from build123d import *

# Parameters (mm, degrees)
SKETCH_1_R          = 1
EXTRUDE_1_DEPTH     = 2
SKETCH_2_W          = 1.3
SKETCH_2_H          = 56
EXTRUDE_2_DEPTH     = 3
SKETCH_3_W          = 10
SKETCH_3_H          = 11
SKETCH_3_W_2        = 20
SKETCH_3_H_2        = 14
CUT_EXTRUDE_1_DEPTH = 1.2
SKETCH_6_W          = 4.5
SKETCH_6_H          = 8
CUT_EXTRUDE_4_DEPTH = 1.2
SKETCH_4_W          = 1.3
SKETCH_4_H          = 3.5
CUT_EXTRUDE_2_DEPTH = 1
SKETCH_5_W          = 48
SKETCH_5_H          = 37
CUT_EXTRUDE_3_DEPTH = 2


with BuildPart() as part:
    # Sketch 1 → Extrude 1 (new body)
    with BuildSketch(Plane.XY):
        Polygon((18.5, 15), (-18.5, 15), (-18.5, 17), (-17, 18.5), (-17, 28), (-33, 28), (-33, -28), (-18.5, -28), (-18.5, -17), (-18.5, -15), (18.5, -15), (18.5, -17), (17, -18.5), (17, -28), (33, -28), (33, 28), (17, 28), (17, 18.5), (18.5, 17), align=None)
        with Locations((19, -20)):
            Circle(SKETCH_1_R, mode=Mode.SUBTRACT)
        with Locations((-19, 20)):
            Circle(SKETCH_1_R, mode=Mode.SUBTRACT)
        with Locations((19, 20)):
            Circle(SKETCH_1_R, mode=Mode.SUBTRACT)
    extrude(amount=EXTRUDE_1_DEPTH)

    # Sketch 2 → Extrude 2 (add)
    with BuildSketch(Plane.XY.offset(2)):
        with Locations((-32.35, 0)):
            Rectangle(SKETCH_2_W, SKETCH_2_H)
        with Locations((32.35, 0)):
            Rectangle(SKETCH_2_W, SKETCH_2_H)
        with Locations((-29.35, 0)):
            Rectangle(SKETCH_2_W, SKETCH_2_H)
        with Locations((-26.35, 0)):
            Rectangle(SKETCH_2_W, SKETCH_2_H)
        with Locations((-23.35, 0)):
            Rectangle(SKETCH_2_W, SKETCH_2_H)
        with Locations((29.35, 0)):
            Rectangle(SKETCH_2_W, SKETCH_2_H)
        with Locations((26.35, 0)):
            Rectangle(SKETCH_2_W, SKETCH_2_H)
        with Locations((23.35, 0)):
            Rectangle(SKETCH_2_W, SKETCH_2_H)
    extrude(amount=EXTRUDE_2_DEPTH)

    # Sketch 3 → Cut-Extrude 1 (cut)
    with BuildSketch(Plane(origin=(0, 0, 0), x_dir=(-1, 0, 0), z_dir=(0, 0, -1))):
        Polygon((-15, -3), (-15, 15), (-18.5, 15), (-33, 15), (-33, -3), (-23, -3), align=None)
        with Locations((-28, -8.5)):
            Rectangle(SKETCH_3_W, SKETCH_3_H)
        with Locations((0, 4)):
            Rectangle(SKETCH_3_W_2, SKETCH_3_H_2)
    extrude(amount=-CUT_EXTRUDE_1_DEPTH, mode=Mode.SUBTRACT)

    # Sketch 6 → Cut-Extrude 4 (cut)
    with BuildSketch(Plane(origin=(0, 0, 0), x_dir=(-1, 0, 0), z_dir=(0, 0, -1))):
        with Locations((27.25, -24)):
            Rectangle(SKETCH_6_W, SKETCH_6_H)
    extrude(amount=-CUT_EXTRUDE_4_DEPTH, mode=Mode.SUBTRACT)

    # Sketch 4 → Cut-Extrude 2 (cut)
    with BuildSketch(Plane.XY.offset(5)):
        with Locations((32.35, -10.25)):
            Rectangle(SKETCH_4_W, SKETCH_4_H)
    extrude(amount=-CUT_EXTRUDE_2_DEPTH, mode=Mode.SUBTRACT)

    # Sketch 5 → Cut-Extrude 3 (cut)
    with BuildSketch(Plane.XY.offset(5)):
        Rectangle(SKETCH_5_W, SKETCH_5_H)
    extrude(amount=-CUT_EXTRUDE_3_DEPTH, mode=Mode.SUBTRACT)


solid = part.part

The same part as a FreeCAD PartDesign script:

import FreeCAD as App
import Part
import Sketcher
from FreeCAD import Vector

doc = App.newDocument("Part")
params = doc.addObject("Spreadsheet::Sheet", "Params")
for row, (alias, value) in enumerate([
    ("sketch1_diameter", "2 mm"),
    ("sketch1_width", "37 mm"),
    ("sketch1_width2", "16 mm"),
    ("sketch1_height", "2 mm"),
    ("sketch1_height2", "56 mm"),
    ("pad1_length", "2 mm"),
    ("sketch2_height", "56 mm"),
    ("sketch2_width", "1.3 mm"),
    ("pad2_length", "3 mm"),
    ("sketch3_width", "18 mm"),
    ("sketch3_width2", "10 mm"),
    ("sketch3_width3", "20 mm"),
    ("sketch3_height", "29 mm"),
    ("sketch3_height2", "14 mm"),
    ("pocket1_length", "1.2 mm"),
    ("sketch4_height", "8 mm"),
    ("sketch4_width", "4.5 mm"),
    ("pocket2_length", "1.2 mm"),
    ("sketch5_width", "1.3 mm"),
    ("sketch5_height", "3.5 mm"),
    ("pocket3_length", "1 mm"),
    ("sketch6_width", "48 mm"),
    ("sketch6_height", "37 mm"),
    ("pocket4_length", "2 mm"),
], start=1):
    params.set(f"A{row}", alias)
    params.set(f"B{row}", "=" + value)
    params.setAlias(f"B{row}", alias)

body = doc.addObject("PartDesign::Body", "Body")

# Sketch on XY plane
sketch1 = body.newObject("Sketcher::SketchObject", "Sketch")
sketch1.AttachmentSupport = (doc.getObject("XY_Plane"), [""])
sketch1.MapMode = "FlatFace"
sketch1.addGeometry([
    Part.LineSegment(Vector(18.5, 15, 0), Vector(-18.5, 15, 0)),  # 0
    Part.LineSegment(Vector(-18.5, 15, 0), Vector(-18.5, 17, 0)),  # 1
    Part.LineSegment(Vector(-18.5, 17, 0), Vector(-17, 18.5, 0)),  # 2
    Part.LineSegment(Vector(-17, 18.5, 0), Vector(-17, 28, 0)),  # 3
    Part.LineSegment(Vector(-17, 28, 0), Vector(-33, 28, 0)),  # 4
    Part.LineSegment(Vector(-33, 28, 0), Vector(-33, -28, 0)),  # 5
    Part.LineSegment(Vector(-33, -28, 0), Vector(-18.5, -28, 0)),  # 6
    Part.LineSegment(Vector(-18.5, -28, 0), Vector(-18.5, -15, 0)),  # 7
    Part.LineSegment(Vector(-18.5, -15, 0), Vector(18.5, -15, 0)),  # 8
    Part.LineSegment(Vector(18.5, -15, 0), Vector(18.5, -17, 0)),  # 9
    Part.LineSegment(Vector(18.5, -17, 0), Vector(17, -18.5, 0)),  # 10
    Part.LineSegment(Vector(17, -18.5, 0), Vector(17, -28, 0)),  # 11
    Part.LineSegment(Vector(17, -28, 0), Vector(33, -28, 0)),  # 12
    Part.LineSegment(Vector(33, -28, 0), Vector(33, 28, 0)),  # 13
    Part.LineSegment(Vector(33, 28, 0), Vector(17, 28, 0)),  # 14
    Part.LineSegment(Vector(17, 28, 0), Vector(17, 18.5, 0)),  # 15
    Part.LineSegment(Vector(17, 18.5, 0), Vector(18.5, 17, 0)),  # 16
    Part.LineSegment(Vector(18.5, 17, 0), Vector(18.5, 15, 0)),  # 17
    Part.Circle(Vector(19, -20, 0), Vector(0, 0, 1), 1),  # 18
    Part.Circle(Vector(-19, 20, 0), Vector(0, 0, 1), 1),  # 19
    Part.Circle(Vector(19, 20, 0), Vector(0, 0, 1), 1),  # 20
], False)
sketch1.addConstraint([
    Sketcher.Constraint("Coincident", 0, 2, 1, 1),
    Sketcher.Constraint("Coincident", 1, 2, 2, 1),
    Sketcher.Constraint("Coincident", 2, 2, 3, 1),
    Sketcher.Constraint("Coincident", 3, 2, 4, 1),
    Sketcher.Constraint("Coincident", 4, 2, 5, 1),
    Sketcher.Constraint("Coincident", 5, 2, 6, 1),
    Sketcher.Constraint("Coincident", 6, 2, 7, 1),
    Sketcher.Constraint("Coincident", 7, 2, 8, 1),
    Sketcher.Constraint("Coincident", 8, 2, 9, 1),
    Sketcher.Constraint("Coincident", 9, 2, 10, 1),
    Sketcher.Constraint("Coincident", 10, 2, 11, 1),
    Sketcher.Constraint("Coincident", 11, 2, 12, 1),
    Sketcher.Constraint("Coincident", 12, 2, 13, 1),
    Sketcher.Constraint("Coincident", 13, 2, 14, 1),
    Sketcher.Constraint("Coincident", 14, 2, 15, 1),
    Sketcher.Constraint("Coincident", 15, 2, 16, 1),
    Sketcher.Constraint("Coincident", 16, 2, 17, 1),
    Sketcher.Constraint("Coincident", 17, 2, 0, 1),
    Sketcher.Constraint("Horizontal", 0),
    Sketcher.Constraint("Vertical", 1),
    Sketcher.Constraint("Vertical", 3),
    Sketcher.Constraint("Horizontal", 4),
    Sketcher.Constraint("Vertical", 5),
    Sketcher.Constraint("Horizontal", 6),
    Sketcher.Constraint("Vertical", 7),
    Sketcher.Constraint("Horizontal", 8),
    Sketcher.Constraint("Vertical", 9),
    Sketcher.Constraint("Vertical", 11),
    Sketcher.Constraint("Horizontal", 12),
    Sketcher.Constraint("Vertical", 13),
    Sketcher.Constraint("Horizontal", 14),
    Sketcher.Constraint("Vertical", 15),
    Sketcher.Constraint("Vertical", 17),
    Sketcher.Constraint("Equal", 18, 19),
    Sketcher.Constraint("Equal", 19, 20),
    Sketcher.Constraint("Symmetric", 18, 3, 19, 3, -1, 1),
    Sketcher.Constraint("Symmetric", 0, 2, 8, 2, -1, 1),
    Sketcher.Constraint("Symmetric", 2, 2, 10, 2, -1, 1),
    Sketcher.Constraint("Symmetric", 4, 2, 12, 2, -1, 1),
    Sketcher.Constraint("Symmetric", 19, 3, 20, 3, -2),
    Sketcher.Constraint("Symmetric", 3, 2, 14, 2, -2),
    Sketcher.Constraint("Symmetric", 1, 2, 16, 2, -2),
    Sketcher.Constraint("Parallel", 2, 10),
    Sketcher.Constraint("Perpendicular", 10, 16),
    Sketcher.Constraint("Horizontal", 6, 2, 11, 2),
    Sketcher.Constraint("Horizontal", 2, 2, 15, 2),
    Sketcher.Constraint("Vertical", 1, 2, 6, 2),
    Sketcher.Constraint("Diameter", 18, 2.0),
    Sketcher.Constraint("DistanceX", 0, 2, 0, 1, 37.0),
    Sketcher.Constraint("DistanceX", 4, 2, 4, 1, 16.0),
    Sketcher.Constraint("DistanceY", 1, 1, 1, 2, 2.0),
    Sketcher.Constraint("DistanceY", 5, 2, 5, 1, 56.0),
    Sketcher.Constraint("DistanceY", 7, 1, 7, 2, 13.0),
    Sketcher.Constraint("DistanceX", 6, 1, 6, 2, 14.5),
    Sketcher.Constraint("DistanceX", -1, 1, 18, 3, 19.0),
    Sketcher.Constraint("DistanceY", 18, 3, -1, 1, 20.0),
])
sketch1.setExpression("Constraints[47]", "Params.sketch1_diameter")
sketch1.setExpression("Constraints[48]", "Params.sketch1_width")
sketch1.setExpression("Constraints[49]", "Params.sketch1_width2")
sketch1.setExpression("Constraints[50]", "Params.sketch1_height")
sketch1.setExpression("Constraints[51]", "Params.sketch1_height2")
pad1 = body.newObject("PartDesign::Pad", "Pad")
pad1.Profile = sketch1
pad1.setExpression("Length", "Params.pad1_length")

# Sketch on XY plane
sketch2 = body.newObject("Sketcher::SketchObject", "Sketch001")
sketch2.AttachmentSupport = (doc.getObject("XY_Plane"), [""])
sketch2.MapMode = "FlatFace"
sketch2.AttachmentOffset = App.Placement(Vector(0, 0, 2), App.Rotation())
sketch2.addGeometry([
    Part.LineSegment(Vector(-33, 28, 0), Vector(-33, -28, 0)),  # 0
    Part.LineSegment(Vector(-33, -28, 0), Vector(-31.7, -28, 0)),  # 1
    Part.LineSegment(Vector(-31.7, -28, 0), Vector(-31.7, 28, 0)),  # 2
    Part.LineSegment(Vector(-31.7, 28, 0), Vector(-33, 28, 0)),  # 3
    Part.LineSegment(Vector(31.7, 28, 0), Vector(31.7, -28, 0)),  # 4
    Part.LineSegment(Vector(31.7, -28, 0), Vector(33, -28, 0)),  # 5
    Part.LineSegment(Vector(33, -28, 0), Vector(33, 28, 0)),  # 6
    Part.LineSegment(Vector(33, 28, 0), Vector(31.7, 28, 0)),  # 7
    Part.LineSegment(Vector(-30, 28, 0), Vector(-30, -28, 0)),  # 8
    Part.LineSegment(Vector(-30, -28, 0), Vector(-28.7, -28, 0)),  # 9
    Part.LineSegment(Vector(-28.7, -28, 0), Vector(-28.7, 28, 0)),  # 10
    Part.LineSegment(Vector(-28.7, 28, 0), Vector(-30, 28, 0)),  # 11
    Part.LineSegment(Vector(-27, 28, 0), Vector(-27, -28, 0)),  # 12
    Part.LineSegment(Vector(-27, -28, 0), Vector(-25.7, -28, 0)),  # 13
    Part.LineSegment(Vector(-25.7, -28, 0), Vector(-25.7, 28, 0)),  # 14
    Part.LineSegment(Vector(-25.7, 28, 0), Vector(-27, 28, 0)),  # 15
    Part.LineSegment(Vector(-24, 28, 0), Vector(-24, -28, 0)),  # 16
    Part.LineSegment(Vector(-24, -28, 0), Vector(-22.7, -28, 0)),  # 17
    Part.LineSegment(Vector(-22.7, -28, 0), Vector(-22.7, 28, 0)),  # 18
    Part.LineSegment(Vector(-22.7, 28, 0), Vector(-24, 28, 0)),  # 19
    Part.LineSegment(Vector(28.7, 28, 0), Vector(28.7, -28, 0)),  # 20
    Part.LineSegment(Vector(28.7, -28, 0), Vector(30, -28, 0)),  # 21
    Part.LineSegment(Vector(30, -28, 0), Vector(30, 28, 0)),  # 22
    Part.LineSegment(Vector(30, 28, 0), Vector(28.7, 28, 0)),  # 23
    Part.LineSegment(Vector(25.7, 28, 0), Vector(25.7, -28, 0)),  # 24
    Part.LineSegment(Vector(25.7, -28, 0), Vector(27, -28, 0)),  # 25
    Part.LineSegment(Vector(27, -28, 0), Vector(27, 28, 0)),  # 26
    Part.LineSegment(Vector(27, 28, 0), Vector(25.7, 28, 0)),  # 27
    Part.LineSegment(Vector(22.7, 28, 0), Vector(22.7, -28, 0)),  # 28
    Part.LineSegment(Vector(22.7, -28, 0), Vector(24, -28, 0)),  # 29
    Part.LineSegment(Vector(24, -28, 0), Vector(24, 28, 0)),  # 30
    Part.LineSegment(Vector(24, 28, 0), Vector(22.7, 28, 0)),  # 31
], False)
sketch2.addConstraint([
    Sketcher.Constraint("Coincident", 0, 2, 1, 1),
    Sketcher.Constraint("Coincident", 1, 2, 2, 1),
    Sketcher.Constraint("Coincident", 2, 2, 3, 1),
    Sketcher.Constraint("Coincident", 3, 2, 0, 1),
    Sketcher.Constraint("Coincident", 4, 2, 5, 1),
    Sketcher.Constraint("Coincident", 5, 2, 6, 1),
    Sketcher.Constraint("Coincident", 6, 2, 7, 1),
    Sketcher.Constraint("Coincident", 7, 2, 4, 1),
    Sketcher.Constraint("Coincident", 8, 2, 9, 1),
    Sketcher.Constraint("Coincident", 9, 2, 10, 1),
    Sketcher.Constraint("Coincident", 10, 2, 11, 1),
    Sketcher.Constraint("Coincident", 11, 2, 8, 1),
    Sketcher.Constraint("Coincident", 12, 2, 13, 1),
    Sketcher.Constraint("Coincident", 13, 2, 14, 1),
    Sketcher.Constraint("Coincident", 14, 2, 15, 1),
    Sketcher.Constraint("Coincident", 15, 2, 12, 1),
    Sketcher.Constraint("Coincident", 16, 2, 17, 1),
    Sketcher.Constraint("Coincident", 17, 2, 18, 1),
    Sketcher.Constraint("Coincident", 18, 2, 19, 1),
    Sketcher.Constraint("Coincident", 19, 2, 16, 1),
    Sketcher.Constraint("Coincident", 20, 2, 21, 1),
    Sketcher.Constraint("Coincident", 21, 2, 22, 1),
    Sketcher.Constraint("Coincident", 22, 2, 23, 1),
    Sketcher.Constraint("Coincident", 23, 2, 20, 1),
    Sketcher.Constraint("Coincident", 24, 2, 25, 1),
    Sketcher.Constraint("Coincident", 25, 2, 26, 1),
    Sketcher.Constraint("Coincident", 26, 2, 27, 1),
    Sketcher.Constraint("Coincident", 27, 2, 24, 1),
    Sketcher.Constraint("Coincident", 28, 2, 29, 1),
    Sketcher.Constraint("Coincident", 29, 2, 30, 1),
    Sketcher.Constraint("Coincident", 30, 2, 31, 1),
    Sketcher.Constraint("Coincident", 31, 2, 28, 1),
    Sketcher.Constraint("Vertical", 0),
    Sketcher.Constraint("Horizontal", 1),
    Sketcher.Constraint("Vertical", 2),
    Sketcher.Constraint("Horizontal", 3),
    Sketcher.Constraint("Vertical", 4),
    Sketcher.Constraint("Horizontal", 5),
    Sketcher.Constraint("Vertical", 6),
    Sketcher.Constraint("Horizontal", 7),
    Sketcher.Constraint("Vertical", 8),
    Sketcher.Constraint("Horizontal", 9),
    Sketcher.Constraint("Vertical", 10),
    Sketcher.Constraint("Horizontal", 11),
    Sketcher.Constraint("Vertical", 12),
    Sketcher.Constraint("Horizontal", 13),
    Sketcher.Constraint("Vertical", 14),
    Sketcher.Constraint("Horizontal", 15),
    Sketcher.Constraint("Vertical", 16),
    Sketcher.Constraint("Horizontal", 17),
    Sketcher.Constraint("Vertical", 18),
    Sketcher.Constraint("Horizontal", 19),
    Sketcher.Constraint("Vertical", 20),
    Sketcher.Constraint("Horizontal", 21),
    Sketcher.Constraint("Vertical", 22),
    Sketcher.Constraint("Horizontal", 23),
    Sketcher.Constraint("Vertical", 24),
    Sketcher.Constraint("Horizontal", 25),
    Sketcher.Constraint("Vertical", 26),
    Sketcher.Constraint("Horizontal", 27),
    Sketcher.Constraint("Vertical", 28),
    Sketcher.Constraint("Horizontal", 29),
    Sketcher.Constraint("Vertical", 30),
    Sketcher.Constraint("Horizontal", 31),
    Sketcher.Constraint("Symmetric", 2, 2, 4, 2, -1, 1),
    Sketcher.Constraint("Symmetric", 0, 2, 6, 2, -1, 1),
    Sketcher.Constraint("Symmetric", 10, 2, 20, 2, -1, 1),
    Sketcher.Constraint("Symmetric", 8, 2, 22, 2, -1, 1),
    Sketcher.Constraint("Symmetric", 14, 2, 24, 2, -1, 1),
    Sketcher.Constraint("Symmetric", 12, 2, 26, 2, -1, 1),
    Sketcher.Constraint("Symmetric", 18, 2, 28, 2, -1, 1),
    Sketcher.Constraint("Symmetric", 16, 2, 30, 2, -1, 1),
    Sketcher.Constraint("Horizontal", 1, 2, 4, 2),
    Sketcher.Constraint("Horizontal", 5, 2, 8, 2),
    Sketcher.Constraint("Horizontal", 7, 2, 10, 2),
    Sketcher.Constraint("Horizontal", 9, 2, 12, 2),
    Sketcher.Constraint("Horizontal", 11, 2, 14, 2),
    Sketcher.Constraint("Horizontal", 13, 2, 16, 2),
    Sketcher.Constraint("Horizontal", 15, 2, 18, 2),
    Sketcher.Constraint("Equal", 7, 9),
    Sketcher.Constraint("Equal", 11, 13),
    Sketcher.Constraint("Equal", 15, 17),
    Sketcher.Constraint("DistanceY", 0, 2, 0, 1, 56.0),
    Sketcher.Constraint("DistanceX", 1, 1, 1, 2, 1.3),
    Sketcher.Constraint("DistanceX", 0, 2, -1, 1, 33.0),
    Sketcher.Constraint("DistanceX", 8, 2, -1, 1, 30.0),
    Sketcher.Constraint("DistanceX", 12, 2, -1, 1, 27.0),
    Sketcher.Constraint("DistanceX", 16, 2, -1, 1, 24.0),
])
sketch2.setExpression("Constraints[82]", "Params.sketch2_height")
sketch2.setExpression("Constraints[83]", "Params.sketch2_width")
pad2 = body.newObject("PartDesign::Pad", "Pad001")
pad2.Profile = sketch2
pad2.setExpression("Length", "Params.pad2_length")

# Sketch on XY plane
sketch3 = body.newObject("Sketcher::SketchObject", "Sketch002")
sketch3.AttachmentSupport = (doc.getObject("XY_Plane"), [""])
sketch3.MapMode = "FlatFace"
sketch3.addGeometry([
    Part.LineSegment(Vector(15, -3, 0), Vector(15, 15, 0)),  # 0
    Part.LineSegment(Vector(15, 15, 0), Vector(33, 15, 0)),  # 1
    Part.LineSegment(Vector(33, 15, 0), Vector(33, -14, 0)),  # 2
    Part.LineSegment(Vector(33, -14, 0), Vector(23, -14, 0)),  # 3
    Part.LineSegment(Vector(23, -14, 0), Vector(23, -3, 0)),  # 4
    Part.LineSegment(Vector(23, -3, 0), Vector(15, -3, 0)),  # 5
    Part.LineSegment(Vector(10, 11, 0), Vector(10, -3, 0)),  # 6
    Part.LineSegment(Vector(10, -3, 0), Vector(-10, -3, 0)),  # 7
    Part.LineSegment(Vector(-10, -3, 0), Vector(-10, 11, 0)),  # 8
    Part.LineSegment(Vector(-10, 11, 0), Vector(10, 11, 0)),  # 9
], False)
sketch3.addConstraint([
    Sketcher.Constraint("Coincident", 0, 2, 1, 1),
    Sketcher.Constraint("Coincident", 1, 2, 2, 1),
    Sketcher.Constraint("Coincident", 2, 2, 3, 1),
    Sketcher.Constraint("Coincident", 3, 2, 4, 1),
    Sketcher.Constraint("Coincident", 4, 2, 5, 1),
    Sketcher.Constraint("Coincident", 5, 2, 0, 1),
    Sketcher.Constraint("Coincident", 6, 2, 7, 1),
    Sketcher.Constraint("Coincident", 7, 2, 8, 1),
    Sketcher.Constraint("Coincident", 8, 2, 9, 1),
    Sketcher.Constraint("Coincident", 9, 2, 6, 1),
    Sketcher.Constraint("Vertical", 0),
    Sketcher.Constraint("Horizontal", 1),
    Sketcher.Constraint("Vertical", 2),
    Sketcher.Constraint("Horizontal", 3),
    Sketcher.Constraint("Vertical", 4),
    Sketcher.Constraint("Horizontal", 5),
    Sketcher.Constraint("Vertical", 6),
    Sketcher.Constraint("Horizontal", 7),
    Sketcher.Constraint("Vertical", 8),
    Sketcher.Constraint("Horizontal", 9),
    Sketcher.Constraint("Horizontal", 5, 2, 6, 2),
    Sketcher.Constraint("Equal", 1, 0),
    Sketcher.Constraint("DistanceX", 1, 1, 1, 2, 18.0),
    Sketcher.Constraint("DistanceX", 3, 2, 3, 1, 10.0),
    Sketcher.Constraint("DistanceX", 7, 2, 7, 1, 20.0),
    Sketcher.Constraint("DistanceY", 2, 2, 2, 1, 29.0),
    Sketcher.Constraint("DistanceY", 6, 2, 6, 1, 14.0),
    Sketcher.Constraint("DistanceX", -1, 1, 0, 2, 15.0),
    Sketcher.Constraint("DistanceY", -1, 1, 0, 2, 15.0),
    Sketcher.Constraint("DistanceX", -1, 1, 6, 2, 10.0),
])
sketch3.setExpression("Constraints[22]", "Params.sketch3_width")
sketch3.setExpression("Constraints[23]", "Params.sketch3_width2")
sketch3.setExpression("Constraints[24]", "Params.sketch3_width3")
sketch3.setExpression("Constraints[25]", "Params.sketch3_height")
sketch3.setExpression("Constraints[26]", "Params.sketch3_height2")
pocket1 = body.newObject("PartDesign::Pocket", "Pocket")
pocket1.Profile = sketch3
pocket1.setExpression("Length", "Params.pocket1_length")
pocket1.Reversed = True

# Sketch on XY plane
sketch4 = body.newObject("Sketcher::SketchObject", "Sketch003")
sketch4.AttachmentSupport = (doc.getObject("XY_Plane"), [""])
sketch4.MapMode = "FlatFace"
sketch4.addGeometry([
    Part.LineSegment(Vector(-25, -20, 0), Vector(-25, -28, 0)),
    Part.LineSegment(Vector(-25, -28, 0), Vector(-29.5, -28, 0)),
    Part.LineSegment(Vector(-29.5, -28, 0), Vector(-29.5, -20, 0)),
    Part.LineSegment(Vector(-29.5, -20, 0), Vector(-25, -20, 0)),
], False)
sketch4.addConstraint([
    Sketcher.Constraint("Coincident", 0, 2, 1, 1),
    Sketcher.Constraint("Coincident", 1, 2, 2, 1),
    Sketcher.Constraint("Coincident", 2, 2, 3, 1),
    Sketcher.Constraint("Coincident", 3, 2, 0, 1),
    Sketcher.Constraint("Vertical", 0),
    Sketcher.Constraint("Horizontal", 1),
    Sketcher.Constraint("Vertical", 2),
    Sketcher.Constraint("Horizontal", 3),
    Sketcher.Constraint("DistanceY", 0, 2, 0, 1, 8.0),
    Sketcher.Constraint("DistanceX", 1, 2, 1, 1, 4.5),
    Sketcher.Constraint("DistanceX", 0, 2, -1, 1, 25.0),
    Sketcher.Constraint("DistanceY", 0, 2, -1, 1, 28.0),
])
sketch4.setExpression("Constraints[8]", "Params.sketch4_height")
sketch4.setExpression("Constraints[9]", "Params.sketch4_width")
pocket2 = body.newObject("PartDesign::Pocket", "Pocket001")
pocket2.Profile = sketch4
pocket2.setExpression("Length", "Params.pocket2_length")
pocket2.Reversed = True

# Sketch on XY plane
sketch5 = body.newObject("Sketcher::SketchObject", "Sketch004")
sketch5.AttachmentSupport = (doc.getObject("XY_Plane"), [""])
sketch5.MapMode = "FlatFace"
sketch5.AttachmentOffset = App.Placement(Vector(0, 0, 5), App.Rotation())
sketch5.addGeometry([
    Part.LineSegment(Vector(31.7, -8.5, 0), Vector(31.7, -12, 0)),
    Part.LineSegment(Vector(31.7, -12, 0), Vector(33, -12, 0)),
    Part.LineSegment(Vector(33, -12, 0), Vector(33, -8.5, 0)),
    Part.LineSegment(Vector(33, -8.5, 0), Vector(31.7, -8.5, 0)),
], False)
sketch5.addConstraint([
    Sketcher.Constraint("Coincident", 0, 2, 1, 1),
    Sketcher.Constraint("Coincident", 1, 2, 2, 1),
    Sketcher.Constraint("Coincident", 2, 2, 3, 1),
    Sketcher.Constraint("Coincident", 3, 2, 0, 1),
    Sketcher.Constraint("Vertical", 0),
    Sketcher.Constraint("Horizontal", 1),
    Sketcher.Constraint("Vertical", 2),
    Sketcher.Constraint("Horizontal", 3),
    Sketcher.Constraint("DistanceX", 1, 1, 1, 2, 1.3),
    Sketcher.Constraint("DistanceY", 0, 2, 0, 1, 3.5),
    Sketcher.Constraint("DistanceY", 0, 2, -1, 1, 12.0),
    Sketcher.Constraint("DistanceX", -1, 1, 1, 2, 33.0),
])
sketch5.setExpression("Constraints[8]", "Params.sketch5_width")
sketch5.setExpression("Constraints[9]", "Params.sketch5_height")
pocket3 = body.newObject("PartDesign::Pocket", "Pocket002")
pocket3.Profile = sketch5
pocket3.setExpression("Length", "Params.pocket3_length")

# Sketch on XY plane
sketch6 = body.newObject("Sketcher::SketchObject", "Sketch005")
sketch6.AttachmentSupport = (doc.getObject("XY_Plane"), [""])
sketch6.MapMode = "FlatFace"
sketch6.AttachmentOffset = App.Placement(Vector(0, 0, 5), App.Rotation())
sketch6.addGeometry([
    Part.LineSegment(Vector(-24, 18, 0), Vector(-24, -18, 0)),
    Part.LineSegment(Vector(-24, -18, 0), Vector(24, -18, 0)),
    Part.LineSegment(Vector(24, -18, 0), Vector(24, 18, 0)),
    Part.LineSegment(Vector(24, 18, 0), Vector(-24, 18, 0)),
], False)
sketch6.addConstraint([
    Sketcher.Constraint("Coincident", 0, 2, 1, 1),
    Sketcher.Constraint("Coincident", 1, 2, 2, 1),
    Sketcher.Constraint("Coincident", 2, 2, 3, 1),
    Sketcher.Constraint("Coincident", 3, 2, 0, 1),
    Sketcher.Constraint("Vertical", 0),
    Sketcher.Constraint("Horizontal", 1),
    Sketcher.Constraint("Vertical", 2),
    Sketcher.Constraint("Horizontal", 3),
    Sketcher.Constraint("Symmetric", 0, 2, 2, 2, -1, 1),
    Sketcher.Constraint("DistanceX", 1, 1, 1, 2, 48.0),
    Sketcher.Constraint("DistanceY", 0, 2, 0, 1, 37.0),
])
sketch6.setExpression("Constraints[9]", "Params.sketch6_width")
sketch6.setExpression("Constraints[10]", "Params.sketch6_height")
pocket4 = body.newObject("PartDesign::Pocket", "Pocket003")
pocket4.Profile = sketch6
pocket4.setExpression("Length", "Params.pocket4_length")

doc.recompute()
